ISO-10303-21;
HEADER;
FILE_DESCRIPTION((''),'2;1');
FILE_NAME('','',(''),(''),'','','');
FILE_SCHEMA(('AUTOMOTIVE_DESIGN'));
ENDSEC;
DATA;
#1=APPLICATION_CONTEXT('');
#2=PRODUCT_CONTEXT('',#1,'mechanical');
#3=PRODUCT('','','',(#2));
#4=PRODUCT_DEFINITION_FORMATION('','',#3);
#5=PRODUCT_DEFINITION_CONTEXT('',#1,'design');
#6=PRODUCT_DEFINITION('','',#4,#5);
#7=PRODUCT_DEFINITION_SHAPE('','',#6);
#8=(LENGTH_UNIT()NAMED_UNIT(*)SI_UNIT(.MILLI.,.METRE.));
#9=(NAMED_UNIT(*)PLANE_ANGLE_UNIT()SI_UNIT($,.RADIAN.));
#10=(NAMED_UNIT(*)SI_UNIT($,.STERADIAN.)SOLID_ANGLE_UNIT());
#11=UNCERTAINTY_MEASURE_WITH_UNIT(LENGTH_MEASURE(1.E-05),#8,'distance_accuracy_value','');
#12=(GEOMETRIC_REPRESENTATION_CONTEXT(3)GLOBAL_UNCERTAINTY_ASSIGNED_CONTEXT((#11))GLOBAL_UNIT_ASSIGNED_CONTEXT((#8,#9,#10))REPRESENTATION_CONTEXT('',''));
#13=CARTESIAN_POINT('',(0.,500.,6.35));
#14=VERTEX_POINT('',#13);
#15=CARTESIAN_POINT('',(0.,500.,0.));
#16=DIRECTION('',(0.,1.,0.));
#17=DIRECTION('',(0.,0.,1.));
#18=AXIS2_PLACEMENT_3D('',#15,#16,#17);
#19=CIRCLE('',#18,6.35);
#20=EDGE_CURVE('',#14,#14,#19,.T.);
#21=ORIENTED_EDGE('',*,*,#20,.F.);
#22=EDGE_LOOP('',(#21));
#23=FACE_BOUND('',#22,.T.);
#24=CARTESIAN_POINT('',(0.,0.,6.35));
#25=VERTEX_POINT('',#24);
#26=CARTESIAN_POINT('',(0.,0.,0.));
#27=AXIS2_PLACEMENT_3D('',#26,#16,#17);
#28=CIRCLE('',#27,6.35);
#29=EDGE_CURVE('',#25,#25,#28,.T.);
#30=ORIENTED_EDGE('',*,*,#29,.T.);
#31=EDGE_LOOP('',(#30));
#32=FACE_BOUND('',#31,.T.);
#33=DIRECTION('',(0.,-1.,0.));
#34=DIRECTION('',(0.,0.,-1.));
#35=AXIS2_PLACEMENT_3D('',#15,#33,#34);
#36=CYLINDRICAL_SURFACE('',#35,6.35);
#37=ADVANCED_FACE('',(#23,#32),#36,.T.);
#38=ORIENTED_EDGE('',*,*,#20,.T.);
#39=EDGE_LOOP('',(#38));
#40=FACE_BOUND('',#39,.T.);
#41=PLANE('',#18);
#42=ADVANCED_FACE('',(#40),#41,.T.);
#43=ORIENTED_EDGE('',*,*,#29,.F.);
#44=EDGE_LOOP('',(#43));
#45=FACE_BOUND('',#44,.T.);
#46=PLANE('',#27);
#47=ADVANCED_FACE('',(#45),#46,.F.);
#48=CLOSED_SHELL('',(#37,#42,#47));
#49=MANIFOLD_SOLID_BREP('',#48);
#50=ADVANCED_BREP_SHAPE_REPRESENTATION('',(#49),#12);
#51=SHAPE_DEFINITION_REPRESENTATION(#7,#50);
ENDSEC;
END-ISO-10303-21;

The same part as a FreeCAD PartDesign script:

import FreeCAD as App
import Part
import Sketcher

doc = App.newDocument("Part")
body = doc.addObject("PartDesign::Body", "Body")

# Sketch on XZ plane
sketch1 = body.newObject("Sketcher::SketchObject", "Sketch")
sketch1.AttachmentSupport = (doc.getObject("XZ_Plane"), [""])
sketch1.MapMode = "FlatFace"
sketch1.addGeometry(Part.Circle(App.Vector(0, 0, 0), App.Vector(0, 0, 1), 6.35), False)
sketch1.addConstraint([
    Sketcher.Constraint("Coincident", 0, 3, -1, 1),
    Sketcher.Constraint("Diameter", 0, 12.7),
])
pad1 = body.newObject("PartDesign::Pad", "Pad")
pad1.Profile = sketch1
pad1.Length = 500
pad1.Reversed = True

doc.recompute()
